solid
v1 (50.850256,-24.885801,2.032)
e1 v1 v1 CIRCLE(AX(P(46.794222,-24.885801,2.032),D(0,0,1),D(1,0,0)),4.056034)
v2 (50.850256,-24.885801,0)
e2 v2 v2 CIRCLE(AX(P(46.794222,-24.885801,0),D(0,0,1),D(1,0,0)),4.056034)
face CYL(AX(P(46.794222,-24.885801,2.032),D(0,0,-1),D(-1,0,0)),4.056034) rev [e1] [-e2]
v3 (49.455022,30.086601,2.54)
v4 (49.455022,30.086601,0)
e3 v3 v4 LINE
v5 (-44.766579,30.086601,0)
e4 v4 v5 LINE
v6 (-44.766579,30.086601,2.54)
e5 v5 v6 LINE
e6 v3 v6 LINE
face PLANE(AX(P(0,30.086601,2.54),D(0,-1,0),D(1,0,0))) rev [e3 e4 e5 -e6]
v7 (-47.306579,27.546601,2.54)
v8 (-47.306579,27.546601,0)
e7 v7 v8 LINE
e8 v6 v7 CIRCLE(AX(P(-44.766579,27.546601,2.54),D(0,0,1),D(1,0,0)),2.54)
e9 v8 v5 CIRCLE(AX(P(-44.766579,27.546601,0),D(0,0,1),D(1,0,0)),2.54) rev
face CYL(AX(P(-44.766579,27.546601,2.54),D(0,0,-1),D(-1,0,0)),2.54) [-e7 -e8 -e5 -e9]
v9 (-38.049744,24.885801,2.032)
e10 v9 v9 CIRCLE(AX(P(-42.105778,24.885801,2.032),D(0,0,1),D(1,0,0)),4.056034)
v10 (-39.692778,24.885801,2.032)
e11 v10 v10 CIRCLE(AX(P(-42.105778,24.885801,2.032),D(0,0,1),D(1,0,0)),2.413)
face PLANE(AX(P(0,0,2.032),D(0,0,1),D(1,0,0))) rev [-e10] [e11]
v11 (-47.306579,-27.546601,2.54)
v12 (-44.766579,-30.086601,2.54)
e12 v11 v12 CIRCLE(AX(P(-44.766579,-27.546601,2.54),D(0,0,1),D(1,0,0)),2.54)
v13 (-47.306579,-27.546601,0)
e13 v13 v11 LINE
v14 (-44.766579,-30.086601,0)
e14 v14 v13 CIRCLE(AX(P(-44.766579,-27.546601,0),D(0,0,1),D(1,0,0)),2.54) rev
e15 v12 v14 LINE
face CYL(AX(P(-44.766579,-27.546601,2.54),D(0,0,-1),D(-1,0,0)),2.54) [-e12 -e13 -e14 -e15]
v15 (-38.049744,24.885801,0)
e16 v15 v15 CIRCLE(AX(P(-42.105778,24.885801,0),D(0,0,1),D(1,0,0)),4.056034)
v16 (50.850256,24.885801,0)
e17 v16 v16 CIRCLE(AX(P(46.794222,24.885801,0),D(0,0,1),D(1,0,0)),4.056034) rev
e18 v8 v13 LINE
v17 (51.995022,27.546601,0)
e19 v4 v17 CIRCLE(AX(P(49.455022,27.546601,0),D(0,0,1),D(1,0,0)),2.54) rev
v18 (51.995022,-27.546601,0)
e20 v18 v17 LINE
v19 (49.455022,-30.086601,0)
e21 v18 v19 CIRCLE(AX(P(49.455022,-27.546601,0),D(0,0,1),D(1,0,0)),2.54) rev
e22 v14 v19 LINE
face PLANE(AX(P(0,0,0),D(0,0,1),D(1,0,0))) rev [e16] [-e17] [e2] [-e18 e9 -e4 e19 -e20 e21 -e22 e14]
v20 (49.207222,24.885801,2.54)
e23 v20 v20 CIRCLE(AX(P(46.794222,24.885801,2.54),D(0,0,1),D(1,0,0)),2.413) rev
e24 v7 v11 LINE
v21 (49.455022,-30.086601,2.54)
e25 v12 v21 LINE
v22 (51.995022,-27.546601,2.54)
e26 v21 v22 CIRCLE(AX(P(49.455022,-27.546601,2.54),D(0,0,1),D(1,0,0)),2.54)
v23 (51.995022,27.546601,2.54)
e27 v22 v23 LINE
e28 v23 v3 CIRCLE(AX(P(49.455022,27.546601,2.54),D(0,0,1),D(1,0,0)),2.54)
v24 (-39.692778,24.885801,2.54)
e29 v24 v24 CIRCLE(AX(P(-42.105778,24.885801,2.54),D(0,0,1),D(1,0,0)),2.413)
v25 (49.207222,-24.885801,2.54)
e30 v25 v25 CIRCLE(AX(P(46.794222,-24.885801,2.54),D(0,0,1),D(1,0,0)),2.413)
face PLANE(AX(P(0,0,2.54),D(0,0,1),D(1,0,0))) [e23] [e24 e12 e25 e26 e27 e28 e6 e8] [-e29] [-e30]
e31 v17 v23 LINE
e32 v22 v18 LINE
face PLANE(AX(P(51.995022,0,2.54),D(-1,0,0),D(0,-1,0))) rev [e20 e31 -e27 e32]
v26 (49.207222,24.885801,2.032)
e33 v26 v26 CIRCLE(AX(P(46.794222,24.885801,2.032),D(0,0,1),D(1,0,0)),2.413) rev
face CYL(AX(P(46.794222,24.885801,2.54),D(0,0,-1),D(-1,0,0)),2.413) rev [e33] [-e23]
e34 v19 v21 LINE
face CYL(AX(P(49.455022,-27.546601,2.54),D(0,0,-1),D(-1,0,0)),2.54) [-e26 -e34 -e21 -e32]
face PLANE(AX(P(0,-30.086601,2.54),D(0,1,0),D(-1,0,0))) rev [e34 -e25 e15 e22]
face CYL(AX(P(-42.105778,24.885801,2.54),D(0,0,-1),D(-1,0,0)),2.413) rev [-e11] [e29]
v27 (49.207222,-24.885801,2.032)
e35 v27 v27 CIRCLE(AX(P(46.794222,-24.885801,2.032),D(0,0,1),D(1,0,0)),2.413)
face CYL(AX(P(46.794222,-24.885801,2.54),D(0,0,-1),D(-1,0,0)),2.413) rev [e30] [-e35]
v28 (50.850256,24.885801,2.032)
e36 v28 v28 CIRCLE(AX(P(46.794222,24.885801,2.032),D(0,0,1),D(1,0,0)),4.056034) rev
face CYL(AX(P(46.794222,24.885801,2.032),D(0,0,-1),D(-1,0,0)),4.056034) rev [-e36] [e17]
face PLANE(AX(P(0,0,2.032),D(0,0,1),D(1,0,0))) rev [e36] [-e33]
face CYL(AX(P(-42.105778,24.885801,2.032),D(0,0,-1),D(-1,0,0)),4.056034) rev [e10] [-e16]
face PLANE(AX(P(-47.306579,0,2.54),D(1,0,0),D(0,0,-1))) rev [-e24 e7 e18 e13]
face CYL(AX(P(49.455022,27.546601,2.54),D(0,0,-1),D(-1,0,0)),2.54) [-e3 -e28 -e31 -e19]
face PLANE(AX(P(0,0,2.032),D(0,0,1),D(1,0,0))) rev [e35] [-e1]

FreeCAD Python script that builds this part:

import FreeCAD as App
import Part
import Sketcher
from FreeCAD import Vector
Q = App.Units.Quantity


def edges_at(feature, points):
    """Names of the edges that pass closest to the given points."""
    edges = feature.Shape.Edges
    near = lambda p: min(range(len(edges)), key=lambda i: edges[i].distToShape(Part.Vertex(*p))[0])
    return sorted({f"Edge{near(p) + 1}" for p in points})

doc = App.newDocument("Part")
body = doc.addObject("PartDesign::Body", "Body")

# Sketch on XY plane
sketch1 = body.newObject("Sketcher::SketchObject", "Sketch")
sketch1.AttachmentSupport = (doc.getObject("XY_Plane"), [""])
sketch1.MapMode = "FlatFace"
sketch1.addGeometry([
    Part.LineSegment(Vector(-47.3, 30.1, 0), Vector(-47.3, -30.1, 0)),  # 0
    Part.LineSegment(Vector(-47.3, -30.1, 0), Vector(52, -30.1, 0)),  # 1
    Part.LineSegment(Vector(52, -30.1, 0), Vector(52, 30.1, 0)),  # 2
    Part.LineSegment(Vector(52, 30.1, 0), Vector(-47.3, 30.1, 0)),  # 3
    Part.Circle(Vector(46.8, -24.9, 0), Vector(0, 0, 1), 2.4),  # 4
], False)
sketch1.addConstraint([
    Sketcher.Constraint("Coincident", 0, 2, 1, 1),
    Sketcher.Constraint("Coincident", 1, 2, 2, 1),
    Sketcher.Constraint("Coincident", 2, 2, 3, 1),
    Sketcher.Constraint("Coincident", 3, 2, 0, 1),
    Sketcher.Constraint("Vertical", 0),
    Sketcher.Constraint("Horizontal", 1),
    Sketcher.Constraint("Vertical", 2),
    Sketcher.Constraint("Horizontal", 3),
    Sketcher.Constraint("Diameter", 4, Q("0.19 in")),
    Sketcher.Constraint("DistanceX", 1, 1, 1, 2, Q("99.301601 mm")),
    Sketcher.Constraint("DistanceY", 4, 3, -1, 1, Q("24.885801 mm")),
    Sketcher.Constraint("DistanceY", 0, 2, -1, 1, Q("30.086601 mm")),
    Sketcher.Constraint("DistanceY", -1, 1, 2, 2, Q("30.086601 mm")),
    Sketcher.Constraint("DistanceX", 0, 2, 4, 3, Q("94.100801 mm")),
    Sketcher.Constraint("DistanceX", -1, 1, 4, 3, Q("46.794222 mm")),
])
pad1 = body.newObject("PartDesign::Pad", "Pad")
pad1.Profile = sketch1
pad1.Length = Q("0.1 in")

# Sketch on XY plane
sketch2 = body.newObject("Sketcher::SketchObject", "Sketch001")
sketch2.AttachmentSupport = (doc.getObject("XY_Plane"), [""])
sketch2.MapMode = "FlatFace"
sketch2.addGeometry([
    Part.Circle(Vector(-42.1, 24.9, 0), Vector(0, 0, 1), 2.4),
    Part.Circle(Vector(46.8, 24.9, 0), Vector(0, 0, 1), 2.4),
], False)
sketch2.addConstraint([
    Sketcher.Constraint("Equal", 0, 1),
    Sketcher.Constraint("Horizontal", 0, 3, 1, 3),
    Sketcher.Constraint("Diameter", 0, Q("0.19 in")),
    Sketcher.Constraint("DistanceX", 0, 3, 1, 3, Q("3.5 in")),
    Sketcher.Constraint("DistanceY", -1, 1, 0, 3, Q("24.885801 mm")),
    Sketcher.Constraint("DistanceX", 0, 3, -1, 1, Q("42.105778 mm")),
])
pocket1 = body.newObject("PartDesign::Pocket", "Pocket")
pocket1.Profile = sketch2
pocket1.Length = Q("0.1 in")
pocket1.Reversed = True

# Sketch on XY plane
sketch3 = body.newObject("Sketcher::SketchObject", "Sketch002")
sketch3.AttachmentSupport = (doc.getObject("XY_Plane"), [""])
sketch3.MapMode = "FlatFace"
sketch3.addGeometry([
    Part.Circle(Vector(-42.1, 24.9, 0), Vector(0, 0, 1), 4.1),
    Part.Circle(Vector(46.8, 24.9, 0), Vector(0, 0, 1), 4.1),
    Part.Circle(Vector(46.8, -24.9, 0), Vector(0, 0, 1), 4.1),
], False)
sketch3.addConstraint([
    Sketcher.Constraint("Equal", 0, 1),
    Sketcher.Constraint("Equal", 1, 2),
    Sketcher.Constraint("Symmetric", 1, 3, 2, 3, -1),
    Sketcher.Constraint("Horizontal", 0, 3, 1, 3),
    Sketcher.Constraint("DistanceX", 0, 3, 1, 3, Q("3.5 in")),
    Sketcher.Constraint("Diameter", 0, Q("8.112068 mm")),
    Sketcher.Constraint("DistanceY", -1, 1, 0, 3, Q("24.885801 mm")),
    Sketcher.Constraint("DistanceX", 0, 3, -1, 1, Q("42.105778 mm")),
])
pocket2 = body.newObject("PartDesign::Pocket", "Pocket001")
pocket2.Profile = sketch3
pocket2.Length = Q("0.08 in")
pocket2.Reversed = True
doc.recompute()

fillet = body.newObject("PartDesign::Fillet", "Fillet")
fillet.Base = (pocket2, edges_at(pocket2, [
    (-47.307, 30.087, 1.27),
    (51.995, 30.087, 1.27),
    (51.995, -30.087, 1.27),
    (-47.307, -30.087, 1.27),
]))
fillet.Radius = Q("0.1 in")

doc.recompute()
